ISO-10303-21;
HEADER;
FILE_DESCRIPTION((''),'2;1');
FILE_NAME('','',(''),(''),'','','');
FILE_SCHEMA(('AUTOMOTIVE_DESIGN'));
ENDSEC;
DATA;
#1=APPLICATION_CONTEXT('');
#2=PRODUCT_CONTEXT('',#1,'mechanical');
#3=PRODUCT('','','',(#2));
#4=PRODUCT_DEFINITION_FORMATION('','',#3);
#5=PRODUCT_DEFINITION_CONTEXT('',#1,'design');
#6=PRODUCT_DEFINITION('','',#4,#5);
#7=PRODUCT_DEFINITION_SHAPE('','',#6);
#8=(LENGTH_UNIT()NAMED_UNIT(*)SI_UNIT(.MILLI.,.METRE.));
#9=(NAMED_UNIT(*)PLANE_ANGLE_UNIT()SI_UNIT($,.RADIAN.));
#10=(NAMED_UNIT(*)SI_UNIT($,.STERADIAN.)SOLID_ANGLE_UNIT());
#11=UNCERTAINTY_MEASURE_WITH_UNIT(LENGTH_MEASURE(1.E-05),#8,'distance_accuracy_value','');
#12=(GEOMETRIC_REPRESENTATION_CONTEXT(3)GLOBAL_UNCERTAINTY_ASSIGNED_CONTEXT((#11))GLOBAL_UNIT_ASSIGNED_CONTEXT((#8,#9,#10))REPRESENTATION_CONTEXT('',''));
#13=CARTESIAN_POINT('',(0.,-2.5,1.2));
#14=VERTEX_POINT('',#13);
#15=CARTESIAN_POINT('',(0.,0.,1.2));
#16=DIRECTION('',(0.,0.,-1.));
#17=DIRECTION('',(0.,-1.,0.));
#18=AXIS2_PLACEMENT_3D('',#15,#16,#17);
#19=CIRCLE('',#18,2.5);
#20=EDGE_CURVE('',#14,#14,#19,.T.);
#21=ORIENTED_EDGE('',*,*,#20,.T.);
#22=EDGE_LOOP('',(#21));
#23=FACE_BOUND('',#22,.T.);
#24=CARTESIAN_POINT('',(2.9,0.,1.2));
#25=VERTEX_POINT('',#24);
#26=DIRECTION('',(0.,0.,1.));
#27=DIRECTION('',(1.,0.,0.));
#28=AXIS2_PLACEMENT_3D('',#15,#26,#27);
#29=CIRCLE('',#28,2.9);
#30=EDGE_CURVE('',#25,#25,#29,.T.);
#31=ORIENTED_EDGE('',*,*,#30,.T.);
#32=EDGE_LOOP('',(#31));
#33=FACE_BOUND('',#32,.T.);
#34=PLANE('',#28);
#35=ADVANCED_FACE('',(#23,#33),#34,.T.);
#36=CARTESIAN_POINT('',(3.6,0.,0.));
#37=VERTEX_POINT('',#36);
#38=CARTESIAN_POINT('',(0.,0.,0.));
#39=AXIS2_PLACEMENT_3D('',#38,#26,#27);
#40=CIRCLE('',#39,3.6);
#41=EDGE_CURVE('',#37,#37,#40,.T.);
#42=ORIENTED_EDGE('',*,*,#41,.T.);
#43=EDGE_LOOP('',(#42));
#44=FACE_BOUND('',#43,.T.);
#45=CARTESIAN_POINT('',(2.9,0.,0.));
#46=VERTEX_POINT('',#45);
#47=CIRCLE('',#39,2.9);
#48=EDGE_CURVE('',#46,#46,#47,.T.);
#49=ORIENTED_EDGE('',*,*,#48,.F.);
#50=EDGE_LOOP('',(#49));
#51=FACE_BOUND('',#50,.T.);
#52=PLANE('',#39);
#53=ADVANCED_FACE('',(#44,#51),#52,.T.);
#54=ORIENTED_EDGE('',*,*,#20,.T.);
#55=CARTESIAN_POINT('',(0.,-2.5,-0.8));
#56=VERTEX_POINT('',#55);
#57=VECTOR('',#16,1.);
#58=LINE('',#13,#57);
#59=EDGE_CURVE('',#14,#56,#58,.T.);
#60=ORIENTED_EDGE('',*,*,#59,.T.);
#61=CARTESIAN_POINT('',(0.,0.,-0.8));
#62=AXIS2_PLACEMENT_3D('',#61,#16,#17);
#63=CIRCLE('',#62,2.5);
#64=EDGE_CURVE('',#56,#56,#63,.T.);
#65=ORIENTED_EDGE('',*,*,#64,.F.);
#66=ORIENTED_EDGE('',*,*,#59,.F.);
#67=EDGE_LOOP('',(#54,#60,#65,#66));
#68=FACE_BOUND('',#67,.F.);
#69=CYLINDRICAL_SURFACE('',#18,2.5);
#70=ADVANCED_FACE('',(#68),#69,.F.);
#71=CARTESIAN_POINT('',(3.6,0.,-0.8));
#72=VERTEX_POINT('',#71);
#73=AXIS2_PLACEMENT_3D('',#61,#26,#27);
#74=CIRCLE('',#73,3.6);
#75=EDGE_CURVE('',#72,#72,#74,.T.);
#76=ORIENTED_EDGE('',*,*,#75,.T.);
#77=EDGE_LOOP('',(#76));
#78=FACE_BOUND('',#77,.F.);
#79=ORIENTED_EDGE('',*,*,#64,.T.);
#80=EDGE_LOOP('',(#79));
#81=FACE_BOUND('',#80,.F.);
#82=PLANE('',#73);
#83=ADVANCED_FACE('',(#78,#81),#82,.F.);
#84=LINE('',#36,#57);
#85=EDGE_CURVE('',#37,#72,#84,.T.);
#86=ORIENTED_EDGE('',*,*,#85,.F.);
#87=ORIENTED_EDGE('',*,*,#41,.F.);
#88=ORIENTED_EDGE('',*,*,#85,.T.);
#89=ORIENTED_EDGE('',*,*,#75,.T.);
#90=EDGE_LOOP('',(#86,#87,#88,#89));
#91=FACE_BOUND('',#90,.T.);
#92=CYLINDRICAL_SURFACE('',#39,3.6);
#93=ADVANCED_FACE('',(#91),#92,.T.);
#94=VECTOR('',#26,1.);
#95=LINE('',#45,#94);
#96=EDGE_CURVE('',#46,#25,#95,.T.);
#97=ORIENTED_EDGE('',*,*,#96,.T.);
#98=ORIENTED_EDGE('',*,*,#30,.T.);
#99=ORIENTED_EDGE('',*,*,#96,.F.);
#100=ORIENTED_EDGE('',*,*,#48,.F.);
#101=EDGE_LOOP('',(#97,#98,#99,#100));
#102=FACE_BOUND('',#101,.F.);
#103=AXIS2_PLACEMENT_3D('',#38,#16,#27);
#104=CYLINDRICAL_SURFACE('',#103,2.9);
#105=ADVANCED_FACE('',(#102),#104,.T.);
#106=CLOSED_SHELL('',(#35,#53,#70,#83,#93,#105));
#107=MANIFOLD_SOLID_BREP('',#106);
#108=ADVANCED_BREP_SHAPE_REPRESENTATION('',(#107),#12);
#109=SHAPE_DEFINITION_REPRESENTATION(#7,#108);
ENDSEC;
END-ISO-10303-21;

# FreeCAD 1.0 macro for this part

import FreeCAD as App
import Part
import Sketcher

doc = App.newDocument("Part")
params = doc.addObject("Spreadsheet::Sheet", "Params")
for row, (alias, value) in enumerate([
    ("sketch1_diameter", "5.8 mm"),
    ("pad1_length", "1.2 mm"),
    ("sketch2_diameter", "7.2 mm"),
    ("pad2_length", "0.8 mm"),
    ("sketch3_diameter", "5 mm"),
    ("hole_diameter", "5 mm"),
], start=1):
    params.set(f"A{row}", alias)
    params.set(f"B{row}", "=" + value)
    params.setAlias(f"B{row}", alias)

body = doc.addObject("PartDesign::Body", "Body")

# Sketch on XY plane
sketch1 = body.newObject("Sketcher::SketchObject", "Sketch")
sketch1.AttachmentSupport = (doc.getObject("XY_Plane"), [""])
sketch1.MapMode = "FlatFace"
sketch1.addGeometry(Part.Circle(App.Vector(0, 0, 0), App.Vector(0, 0, 1), 2.9), False)
sketch1.addConstraint([
    Sketcher.Constraint("Coincident", 0, 3, -1, 1),
    Sketcher.Constraint("Diameter", 0, 5.8),
])
sketch1.setExpression("Constraints[1]", "Params.sketch1_diameter")
pad1 = body.newObject("PartDesign::Pad", "Pad")
pad1.Profile = sketch1
pad1.setExpression("Length", "Params.pad1_length")

# Sketch on XY plane
sketch2 = body.newObject("Sketcher::SketchObject", "Sketch001")
sketch2.AttachmentSupport = (doc.getObject("XY_Plane"), [""])
sketch2.MapMode = "FlatFace"
sketch2.addGeometry(Part.Circle(App.Vector(0, 0, 0), App.Vector(0, 0, 1), 3.6), False)
sketch2.addConstraint([
    Sketcher.Constraint("Coincident", 0, 3, -1, 1),
    Sketcher.Constraint("Diameter", 0, 7.2),
])
sketch2.setExpression("Constraints[1]", "Params.sketch2_diameter")
pad2 = body.newObject("PartDesign::Pad", "Pad001")
pad2.Profile = sketch2
pad2.setExpression("Length", "Params.pad2_length")
pad2.Reversed = True

# Sketch on XY plane
sketch3 = body.newObject("Sketcher::SketchObject", "Sketch002")
sketch3.AttachmentSupport = (doc.getObject("XY_Plane"), [""])
sketch3.MapMode = "FlatFace"
sketch3.AttachmentOffset = App.Placement(App.Vector(0, 0, 1.2), App.Rotation())
sketch3.addGeometry(Part.Circle(App.Vector(0, 0, 0), App.Vector(0, 0, 1), 2.5), False)
sketch3.addConstraint([
    Sketcher.Constraint("Coincident", 0, 3, -1, 1),
    Sketcher.Constraint("Diameter", 0, 5.0),
])
sketch3.setExpression("Constraints[1]", "Params.sketch3_diameter")
doc.recompute()
hole = body.newObject("PartDesign::Hole", "Hole")
hole.Profile = sketch3
hole.ThreadType = "None"
hole.setExpression("Diameter", "Params.hole_diameter")
hole.DepthType = "ThroughAll"

doc.recompute()
